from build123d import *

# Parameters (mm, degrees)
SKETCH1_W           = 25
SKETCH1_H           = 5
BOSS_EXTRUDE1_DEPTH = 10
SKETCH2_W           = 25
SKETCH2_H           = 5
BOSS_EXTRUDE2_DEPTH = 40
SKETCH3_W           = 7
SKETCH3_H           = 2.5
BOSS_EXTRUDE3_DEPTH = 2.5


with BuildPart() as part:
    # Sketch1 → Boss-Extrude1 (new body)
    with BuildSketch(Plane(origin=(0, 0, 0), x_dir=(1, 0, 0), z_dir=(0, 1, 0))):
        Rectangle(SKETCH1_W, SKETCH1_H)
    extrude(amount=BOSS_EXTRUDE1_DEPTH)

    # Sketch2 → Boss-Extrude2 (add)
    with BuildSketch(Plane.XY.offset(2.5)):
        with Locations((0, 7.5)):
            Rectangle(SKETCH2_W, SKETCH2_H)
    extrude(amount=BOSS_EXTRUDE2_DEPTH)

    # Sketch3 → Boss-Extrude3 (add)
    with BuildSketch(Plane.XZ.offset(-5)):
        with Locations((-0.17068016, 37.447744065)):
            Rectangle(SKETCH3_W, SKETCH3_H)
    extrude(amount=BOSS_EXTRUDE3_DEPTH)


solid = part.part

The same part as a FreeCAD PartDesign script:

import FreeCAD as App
import Part
import Sketcher

V = App.Vector

doc = App.newDocument("Part")
params = doc.addObject("Spreadsheet::Sheet", "Params")
for row, (alias, value) in enumerate([
    ("sketch1_width", "25 mm"),
    ("sketch1_height", "5 mm"),
    ("pad1_length", "10 mm"),
    ("sketch2_width", "25 mm"),
    ("sketch2_height", "5 mm"),
    ("pad2_length", "40 mm"),
    ("sketch3_width", "7 mm"),
    ("sketch3_height", "2.5 mm"),
    ("pad3_length", "2.5 mm"),
], start=1):
    params.set(f"A{row}", alias)
    params.set(f"B{row}", "=" + value)
    params.setAlias(f"B{row}", alias)

body = doc.addObject("PartDesign::Body", "Body")

# Sketch on XZ plane
sketch1 = body.newObject("Sketcher::SketchObject", "Sketch")
sketch1.AttachmentSupport = (doc.getObject("XZ_Plane"), [""])
sketch1.MapMode = "FlatFace"
sketch1.addGeometry(Part.LineSegment(V(-12.5, -2.5, 0), V(-12.5, 2.5, 0)), False)
sketch1.addGeometry(Part.LineSegment(V(-12.5, 2.5, 0), V(12.5, 2.5, 0)), False)
sketch1.addGeometry(Part.LineSegment(V(12.5, 2.5, 0), V(12.5, -2.5, 0)), False)
sketch1.addGeometry(Part.LineSegment(V(12.5, -2.5, 0), V(-12.5, -2.5, 0)), False)
sketch1.addConstraint(Sketcher.Constraint("Coincident", 0, 2, 1, 1))
sketch1.addConstraint(Sketcher.Constraint("Coincident", 1, 2, 2, 1))
sketch1.addConstraint(Sketcher.Constraint("Coincident", 2, 2, 3, 1))
sketch1.addConstraint(Sketcher.Constraint("Coincident", 3, 2, 0, 1))
sketch1.addConstraint(Sketcher.Constraint("Vertical", 0))
sketch1.addConstraint(Sketcher.Constraint("Horizontal", 1))
sketch1.addConstraint(Sketcher.Constraint("Vertical", 2))
sketch1.addConstraint(Sketcher.Constraint("Horizontal", 3))
sketch1.addConstraint(Sketcher.Constraint("Symmetric", 0, 2, 2, 2, -1, 1))
sketch1.addConstraint(Sketcher.Constraint("DistanceX", 1, 1, 1, 2, 25.0))
sketch1.addConstraint(Sketcher.Constraint("DistanceY", 0, 1, 0, 2, 5.0))
sketch1.setExpression("Constraints[9]", "Params.sketch1_width")
sketch1.setExpression("Constraints[10]", "Params.sketch1_height")
pad1 = body.newObject("PartDesign::Pad", "Pad")
pad1.Profile = sketch1
pad1.setExpression("Length", "Params.pad1_length")
pad1.Reversed = True

# Sketch on XY plane
sketch2 = body.newObject("Sketcher::SketchObject", "Sketch001")
sketch2.AttachmentSupport = (doc.getObject("XY_Plane"), [""])
sketch2.MapMode = "FlatFace"
sketch2.AttachmentOffset = App.Placement(V(0, 0, 2.5), App.Rotation())
sketch2.addGeometry(Part.LineSegment(V(-12.5, 10, 0), V(-12.5, 5, 0)), False)
sketch2.addGeometry(Part.LineSegment(V(-12.5, 5, 0), V(12.5, 5, 0)), False)
sketch2.addGeometry(Part.LineSegment(V(12.5, 5, 0), V(12.5, 10, 0)), False)
sketch2.addGeometry(Part.LineSegment(V(12.5, 10, 0), V(-12.5, 10, 0)), False)
sketch2.addConstraint(Sketcher.Constraint("Coincident", 0, 2, 1, 1))
sketch2.addConstraint(Sketcher.Constraint("Coincident", 1, 2, 2, 1))
sketch2.addConstraint(Sketcher.Constraint("Coincident", 2, 2, 3, 1))
sketch2.addConstraint(Sketcher.Constraint("Coincident", 3, 2, 0, 1))
sketch2.addConstraint(Sketcher.Constraint("Vertical", 0))
sketch2.addConstraint(Sketcher.Constraint("Horizontal", 1))
sketch2.addConstraint(Sketcher.Constraint("Vertical", 2))
sketch2.addConstraint(Sketcher.Constraint("Horizontal", 3))
sketch2.addConstraint(Sketcher.Constraint("DistanceX", 1, 1, 1, 2, 25.0))
sketch2.addConstraint(Sketcher.Constraint("DistanceY", 0, 2, 0, 1, 5.0))
sketch2.addConstraint(Sketcher.Constraint("DistanceY", -1, 1, 0, 2, 5.0))
sketch2.addConstraint(Sketcher.Constraint("DistanceX", 0, 2, -1, 1, 12.5))
sketch2.setExpression("Constraints[8]", "Params.sketch2_width")
sketch2.setExpression("Constraints[9]", "Params.sketch2_height")
pad2 = body.newObject("PartDesign::Pad", "Pad001")
pad2.Profile = sketch2
pad2.setExpression("Length", "Params.pad2_length")

# Sketch on XZ plane
sketch3 = body.newObject("Sketcher::SketchObject", "Sketch002")
sketch3.AttachmentSupport = (doc.getObject("XZ_Plane"), [""])
sketch3.MapMode = "FlatFace"
sketch3.AttachmentOffset = App.Placement(V(0, 0, -5), App.Rotation())
sketch3.addGeometry(Part.LineSegment(V(-3.67068, 38.697744, 0), V(-3.67068, 36.197744, 0)), False)
sketch3.addGeometry(Part.LineSegment(V(-3.67068, 36.197744, 0), V(3.32932, 36.197744, 0)), False)
sketch3.addGeometry(Part.LineSegment(V(3.32932, 36.197744, 0), V(3.32932, 38.697744, 0)), False)
sketch3.addGeometry(Part.LineSegment(V(3.32932, 38.697744, 0), V(-3.67068, 38.697744, 0)), False)
sketch3.addConstraint(Sketcher.Constraint("Coincident", 0, 2, 1, 1))
sketch3.addConstraint(Sketcher.Constraint("Coincident", 1, 2, 2, 1))
sketch3.addConstraint(Sketcher.Constraint("Coincident", 2, 2, 3, 1))
sketch3.addConstraint(Sketcher.Constraint("Coincident", 3, 2, 0, 1))
sketch3.addConstraint(Sketcher.Constraint("Vertical", 0))
sketch3.addConstraint(Sketcher.Constraint("Horizontal", 1))
sketch3.addConstraint(Sketcher.Constraint("Vertical", 2))
sketch3.addConstraint(Sketcher.Constraint("Horizontal", 3))
sketch3.addConstraint(Sketcher.Constraint("DistanceX", 1, 1, 1, 2, 7.0))
sketch3.addConstraint(Sketcher.Constraint("DistanceY", 0, 2, 0, 1, 2.5))
sketch3.addConstraint(Sketcher.Constraint("DistanceX", 0, 2, -1, 1, 3.67068))
sketch3.addConstraint(Sketcher.Constraint("DistanceY", -1, 1, 0, 2, 36.197744))
sketch3.setExpression("Constraints[8]", "Params.sketch3_width")
sketch3.setExpression("Constraints[9]", "Params.sketch3_height")
pad3 = body.newObject("PartDesign::Pad", "Pad002")
pad3.Profile = sketch3
pad3.setExpression("Length", "Params.pad3_length")

doc.recompute()
